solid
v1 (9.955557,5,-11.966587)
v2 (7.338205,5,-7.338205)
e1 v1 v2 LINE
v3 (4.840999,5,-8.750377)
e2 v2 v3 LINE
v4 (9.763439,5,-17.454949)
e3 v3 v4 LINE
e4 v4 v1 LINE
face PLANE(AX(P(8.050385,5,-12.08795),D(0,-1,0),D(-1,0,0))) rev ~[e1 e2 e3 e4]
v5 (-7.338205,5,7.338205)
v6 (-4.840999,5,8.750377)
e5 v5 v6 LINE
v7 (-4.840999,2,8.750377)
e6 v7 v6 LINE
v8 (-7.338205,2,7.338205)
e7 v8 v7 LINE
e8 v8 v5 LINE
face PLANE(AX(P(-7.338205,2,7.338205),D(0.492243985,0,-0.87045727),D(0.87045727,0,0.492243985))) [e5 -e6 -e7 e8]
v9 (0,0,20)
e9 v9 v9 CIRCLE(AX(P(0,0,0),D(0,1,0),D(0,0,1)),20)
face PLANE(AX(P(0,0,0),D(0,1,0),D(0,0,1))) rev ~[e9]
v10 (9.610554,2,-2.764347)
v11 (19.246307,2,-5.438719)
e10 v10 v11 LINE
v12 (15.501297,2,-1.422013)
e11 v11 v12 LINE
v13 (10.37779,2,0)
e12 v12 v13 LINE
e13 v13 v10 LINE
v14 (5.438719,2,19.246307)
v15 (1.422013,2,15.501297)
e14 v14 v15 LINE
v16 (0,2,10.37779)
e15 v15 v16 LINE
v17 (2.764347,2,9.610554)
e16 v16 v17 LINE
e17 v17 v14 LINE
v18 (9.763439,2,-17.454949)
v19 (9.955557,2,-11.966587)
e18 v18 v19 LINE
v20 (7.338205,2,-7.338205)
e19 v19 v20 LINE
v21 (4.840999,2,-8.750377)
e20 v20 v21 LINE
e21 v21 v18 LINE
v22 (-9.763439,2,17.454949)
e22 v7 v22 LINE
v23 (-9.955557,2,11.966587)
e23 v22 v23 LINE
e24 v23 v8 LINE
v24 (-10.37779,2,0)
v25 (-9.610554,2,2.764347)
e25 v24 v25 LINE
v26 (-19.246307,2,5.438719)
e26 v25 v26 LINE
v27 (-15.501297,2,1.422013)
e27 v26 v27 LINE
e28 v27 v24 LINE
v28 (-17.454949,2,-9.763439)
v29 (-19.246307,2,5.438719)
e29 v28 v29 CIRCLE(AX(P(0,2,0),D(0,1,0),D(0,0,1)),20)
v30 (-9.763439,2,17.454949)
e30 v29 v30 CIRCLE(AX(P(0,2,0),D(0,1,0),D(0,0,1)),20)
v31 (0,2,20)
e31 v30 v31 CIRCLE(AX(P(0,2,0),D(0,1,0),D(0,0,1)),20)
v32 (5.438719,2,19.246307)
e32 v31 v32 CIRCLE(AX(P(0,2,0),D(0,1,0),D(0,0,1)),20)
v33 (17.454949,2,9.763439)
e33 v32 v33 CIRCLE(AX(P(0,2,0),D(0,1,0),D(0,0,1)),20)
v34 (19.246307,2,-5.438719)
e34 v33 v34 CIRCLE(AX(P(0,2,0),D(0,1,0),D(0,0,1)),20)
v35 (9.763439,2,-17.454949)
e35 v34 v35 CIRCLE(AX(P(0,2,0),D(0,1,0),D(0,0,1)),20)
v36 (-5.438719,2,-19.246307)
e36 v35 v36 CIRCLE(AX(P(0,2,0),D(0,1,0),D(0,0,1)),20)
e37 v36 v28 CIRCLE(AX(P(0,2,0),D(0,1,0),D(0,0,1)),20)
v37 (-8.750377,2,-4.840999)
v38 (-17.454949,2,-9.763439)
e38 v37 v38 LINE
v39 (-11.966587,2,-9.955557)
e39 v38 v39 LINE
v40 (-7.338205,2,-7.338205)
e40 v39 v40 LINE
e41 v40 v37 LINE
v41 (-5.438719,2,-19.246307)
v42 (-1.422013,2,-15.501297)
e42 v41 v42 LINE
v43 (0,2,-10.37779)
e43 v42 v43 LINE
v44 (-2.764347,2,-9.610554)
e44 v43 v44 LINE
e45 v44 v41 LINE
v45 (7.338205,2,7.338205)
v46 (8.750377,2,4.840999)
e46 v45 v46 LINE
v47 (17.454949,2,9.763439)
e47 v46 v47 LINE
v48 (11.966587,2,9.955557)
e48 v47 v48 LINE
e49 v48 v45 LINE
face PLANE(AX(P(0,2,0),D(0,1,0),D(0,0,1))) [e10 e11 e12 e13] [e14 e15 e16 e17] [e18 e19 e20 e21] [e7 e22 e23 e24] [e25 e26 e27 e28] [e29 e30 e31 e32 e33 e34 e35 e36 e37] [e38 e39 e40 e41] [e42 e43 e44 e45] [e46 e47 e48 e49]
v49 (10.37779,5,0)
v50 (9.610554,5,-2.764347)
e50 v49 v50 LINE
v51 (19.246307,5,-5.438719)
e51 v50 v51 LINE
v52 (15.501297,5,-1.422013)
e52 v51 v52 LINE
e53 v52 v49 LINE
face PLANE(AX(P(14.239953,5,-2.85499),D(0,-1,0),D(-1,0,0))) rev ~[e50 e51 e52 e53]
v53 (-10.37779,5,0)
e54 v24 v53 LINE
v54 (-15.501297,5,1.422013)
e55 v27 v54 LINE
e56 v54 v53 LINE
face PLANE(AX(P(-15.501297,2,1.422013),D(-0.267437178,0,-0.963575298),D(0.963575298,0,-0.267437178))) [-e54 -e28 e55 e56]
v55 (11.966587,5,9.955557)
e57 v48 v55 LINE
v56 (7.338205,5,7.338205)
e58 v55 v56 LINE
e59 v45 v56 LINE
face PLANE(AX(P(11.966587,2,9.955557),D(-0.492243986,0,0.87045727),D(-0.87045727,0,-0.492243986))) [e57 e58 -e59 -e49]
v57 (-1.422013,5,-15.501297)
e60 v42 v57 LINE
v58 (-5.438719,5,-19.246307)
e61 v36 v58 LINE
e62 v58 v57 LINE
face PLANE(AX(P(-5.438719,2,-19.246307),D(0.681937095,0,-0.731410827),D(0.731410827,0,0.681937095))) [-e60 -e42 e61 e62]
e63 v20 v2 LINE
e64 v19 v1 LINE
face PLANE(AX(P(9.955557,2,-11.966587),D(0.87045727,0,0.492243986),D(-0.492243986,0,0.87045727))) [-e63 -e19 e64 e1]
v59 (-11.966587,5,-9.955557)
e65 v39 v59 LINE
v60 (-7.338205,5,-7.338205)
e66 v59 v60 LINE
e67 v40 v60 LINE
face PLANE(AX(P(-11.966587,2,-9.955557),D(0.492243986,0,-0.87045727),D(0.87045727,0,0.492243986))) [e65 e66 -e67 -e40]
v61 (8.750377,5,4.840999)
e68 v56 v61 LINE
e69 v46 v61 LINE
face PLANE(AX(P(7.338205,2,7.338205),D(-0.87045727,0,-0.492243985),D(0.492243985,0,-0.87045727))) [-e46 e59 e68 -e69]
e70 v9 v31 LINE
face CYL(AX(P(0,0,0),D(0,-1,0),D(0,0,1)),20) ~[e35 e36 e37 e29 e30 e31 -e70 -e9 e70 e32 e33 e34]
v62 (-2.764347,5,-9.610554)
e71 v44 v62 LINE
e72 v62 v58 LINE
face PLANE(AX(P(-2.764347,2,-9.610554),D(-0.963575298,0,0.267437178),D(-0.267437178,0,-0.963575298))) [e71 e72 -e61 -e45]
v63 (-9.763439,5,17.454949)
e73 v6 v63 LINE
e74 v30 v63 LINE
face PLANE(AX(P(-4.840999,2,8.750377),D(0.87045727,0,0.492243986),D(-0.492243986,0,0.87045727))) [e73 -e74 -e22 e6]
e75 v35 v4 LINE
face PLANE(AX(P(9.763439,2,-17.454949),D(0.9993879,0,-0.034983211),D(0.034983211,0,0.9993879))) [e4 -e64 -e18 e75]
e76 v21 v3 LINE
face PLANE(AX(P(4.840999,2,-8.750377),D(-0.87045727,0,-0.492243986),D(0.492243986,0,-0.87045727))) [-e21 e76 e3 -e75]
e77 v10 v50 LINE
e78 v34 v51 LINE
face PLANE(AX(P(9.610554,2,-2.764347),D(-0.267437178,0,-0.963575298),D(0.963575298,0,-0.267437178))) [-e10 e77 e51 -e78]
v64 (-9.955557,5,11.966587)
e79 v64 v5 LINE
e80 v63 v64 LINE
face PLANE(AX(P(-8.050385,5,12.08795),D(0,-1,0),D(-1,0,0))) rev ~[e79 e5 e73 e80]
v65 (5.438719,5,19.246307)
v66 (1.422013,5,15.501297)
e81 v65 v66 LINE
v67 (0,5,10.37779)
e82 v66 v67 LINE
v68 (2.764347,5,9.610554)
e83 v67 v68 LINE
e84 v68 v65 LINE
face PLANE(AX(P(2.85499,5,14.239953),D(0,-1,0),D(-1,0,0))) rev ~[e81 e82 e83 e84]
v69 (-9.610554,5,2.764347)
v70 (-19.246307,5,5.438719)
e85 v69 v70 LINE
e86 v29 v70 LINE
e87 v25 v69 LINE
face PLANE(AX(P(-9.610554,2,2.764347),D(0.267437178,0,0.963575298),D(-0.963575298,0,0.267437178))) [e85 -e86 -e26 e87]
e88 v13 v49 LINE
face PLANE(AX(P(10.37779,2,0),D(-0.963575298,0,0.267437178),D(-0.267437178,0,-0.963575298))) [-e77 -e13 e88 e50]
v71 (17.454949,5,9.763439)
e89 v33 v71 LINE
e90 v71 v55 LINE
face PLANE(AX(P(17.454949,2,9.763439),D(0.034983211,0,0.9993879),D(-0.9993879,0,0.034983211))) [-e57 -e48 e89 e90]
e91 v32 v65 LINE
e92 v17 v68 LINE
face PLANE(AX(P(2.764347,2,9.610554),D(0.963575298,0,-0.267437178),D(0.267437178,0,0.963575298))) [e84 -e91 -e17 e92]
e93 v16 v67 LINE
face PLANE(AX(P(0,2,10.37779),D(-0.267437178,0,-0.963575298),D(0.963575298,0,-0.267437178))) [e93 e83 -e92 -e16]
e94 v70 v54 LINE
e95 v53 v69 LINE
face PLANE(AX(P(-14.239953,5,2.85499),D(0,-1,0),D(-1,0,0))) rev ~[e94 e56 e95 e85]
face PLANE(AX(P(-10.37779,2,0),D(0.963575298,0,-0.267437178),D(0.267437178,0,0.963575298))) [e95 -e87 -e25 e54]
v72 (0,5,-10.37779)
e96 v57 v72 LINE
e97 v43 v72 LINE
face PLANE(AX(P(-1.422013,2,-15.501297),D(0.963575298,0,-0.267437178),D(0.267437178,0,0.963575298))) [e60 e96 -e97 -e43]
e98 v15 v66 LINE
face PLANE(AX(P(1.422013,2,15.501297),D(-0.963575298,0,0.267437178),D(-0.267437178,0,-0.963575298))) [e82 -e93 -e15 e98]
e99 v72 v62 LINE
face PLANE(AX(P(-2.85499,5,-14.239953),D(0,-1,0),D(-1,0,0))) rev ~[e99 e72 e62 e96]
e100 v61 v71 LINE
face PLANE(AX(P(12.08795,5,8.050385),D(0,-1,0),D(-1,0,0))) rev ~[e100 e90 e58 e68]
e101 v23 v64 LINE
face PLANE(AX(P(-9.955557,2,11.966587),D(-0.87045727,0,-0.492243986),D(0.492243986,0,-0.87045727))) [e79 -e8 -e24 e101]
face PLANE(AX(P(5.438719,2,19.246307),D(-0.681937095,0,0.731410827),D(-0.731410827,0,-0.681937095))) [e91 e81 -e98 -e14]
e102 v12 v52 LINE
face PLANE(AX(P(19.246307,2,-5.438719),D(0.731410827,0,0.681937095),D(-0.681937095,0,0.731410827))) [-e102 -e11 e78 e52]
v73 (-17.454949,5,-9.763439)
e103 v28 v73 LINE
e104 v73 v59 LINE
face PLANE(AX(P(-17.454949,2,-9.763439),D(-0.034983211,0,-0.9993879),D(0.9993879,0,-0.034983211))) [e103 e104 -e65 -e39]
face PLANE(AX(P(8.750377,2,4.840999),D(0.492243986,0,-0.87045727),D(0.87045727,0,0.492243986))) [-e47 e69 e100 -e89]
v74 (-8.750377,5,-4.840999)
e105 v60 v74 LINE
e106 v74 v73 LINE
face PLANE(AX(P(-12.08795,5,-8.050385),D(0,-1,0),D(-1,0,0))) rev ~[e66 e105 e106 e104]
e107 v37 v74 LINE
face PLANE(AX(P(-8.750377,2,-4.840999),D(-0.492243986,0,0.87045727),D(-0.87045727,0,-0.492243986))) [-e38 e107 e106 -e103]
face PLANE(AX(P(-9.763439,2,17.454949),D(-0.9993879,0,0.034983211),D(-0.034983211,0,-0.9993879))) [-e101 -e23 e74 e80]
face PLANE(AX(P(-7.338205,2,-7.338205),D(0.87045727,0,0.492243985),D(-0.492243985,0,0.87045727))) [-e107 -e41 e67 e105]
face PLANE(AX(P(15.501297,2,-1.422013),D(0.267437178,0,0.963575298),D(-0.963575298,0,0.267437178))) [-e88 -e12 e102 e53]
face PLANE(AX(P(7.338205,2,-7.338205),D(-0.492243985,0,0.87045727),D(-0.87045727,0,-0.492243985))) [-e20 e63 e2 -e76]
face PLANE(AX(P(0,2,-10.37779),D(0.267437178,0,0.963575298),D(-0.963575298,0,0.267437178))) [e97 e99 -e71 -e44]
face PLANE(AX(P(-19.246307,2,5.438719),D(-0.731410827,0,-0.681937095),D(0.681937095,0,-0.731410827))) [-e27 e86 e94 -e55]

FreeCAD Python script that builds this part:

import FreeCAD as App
import Part
import Sketcher

V = App.Vector

doc = App.newDocument("Part")
params = doc.addObject("Spreadsheet::Sheet", "Params")
for row, (alias, value) in enumerate([
    ("sketch1_diameter", "40 mm"),
    ("pad1_length", "2 mm"),
    ("sketch2_length", "10 mm"),
    ("pad2_length", "3 mm"),
], start=1):
    params.set(f"A{row}", alias)
    params.set(f"B{row}", "=" + value)
    params.setAlias(f"B{row}", alias)

body = doc.addObject("PartDesign::Body", "Body")

# Sketch on XZ plane
sketch1 = doc.addObject("Sketcher::SketchObject", "Sketch")
body.addObject(sketch1)
sketch1.AttachmentSupport = (doc.XZ_Plane, [""])
sketch1.MapMode = "FlatFace"
sketch1.addGeometry(Part.Circle(V(0, 0, 0), V(0, 0, 1), 20), False)
sketch1.addConstraint([
    Sketcher.Constraint("Coincident", 0, 3, -1, 1),
    Sketcher.Constraint("Diameter", 0, 40.0),
])
sketch1.setExpression("Constraints[1]", "Params.sketch1_diameter")
pad1 = doc.addObject("PartDesign::Pad", "Pad")
body.addObject(pad1)
pad1.Profile = sketch1
pad1.setExpression("Length", "Params.pad1_length")
pad1.Reversed = True

# Sketch on XZ plane
sketch2 = doc.addObject("Sketcher::SketchObject", "Sketch001")
body.addObject(sketch2)
sketch2.AttachmentSupport = (doc.XZ_Plane, [""])
sketch2.MapMode = "FlatFace"
sketch2.AttachmentOffset = App.Placement(V(0, 0, -2), App.Rotation())
sketch2.addGeometry([
    Part.LineSegment(V(0, 10.37779, 0), V(1.422013, 15.501297, 0)),  # 0
    Part.LineSegment(V(1.422013, 15.501297, 0), V(5.438719, 19.246307, 0)),  # 1
    Part.LineSegment(V(5.438719, 19.246307, 0), V(2.764347, 9.610554, 0)),  # 2
    Part.LineSegment(V(2.764347, 9.610554, 0), V(0, 10.37779, 0)),  # 3
    Part.LineSegment(V(-7.338205, 7.338205, 0), V(-9.955557, 11.966587, 0)),  # 4
    Part.LineSegment(V(-9.955557, 11.966587, 0), V(-9.763439, 17.454949, 0)),  # 5
    Part.LineSegment(V(-9.763439, 17.454949, 0), V(-4.840999, 8.750377, 0)),  # 6
    Part.LineSegment(V(-4.840999, 8.750377, 0), V(-7.338205, 7.338205, 0)),  # 7
    Part.LineSegment(V(-10.37779, 0, 0), V(-15.501297, 1.422013, 0)),  # 8
    Part.LineSegment(V(-15.501297, 1.422013, 0), V(-19.246307, 5.438719, 0)),  # 9
    Part.LineSegment(V(-19.246307, 5.438719, 0), V(-9.610554, 2.764347, 0)),  # 10
    Part.LineSegment(V(-9.610554, 2.764347, 0), V(-10.37779, 0, 0)),  # 11
    Part.LineSegment(V(-7.338205, -7.338205, 0), V(-11.966587, -9.955557, 0)),  # 12
    Part.LineSegment(V(-11.966587, -9.955557, 0), V(-17.454949, -9.763439, 0)),  # 13
    Part.LineSegment(V(-17.454949, -9.763439, 0), V(-8.750377, -4.840999, 0)),  # 14
    Part.LineSegment(V(-8.750377, -4.840999, 0), V(-7.338205, -7.338205, 0)),  # 15
    Part.LineSegment(V(0, -10.37779, 0), V(-1.422013, -15.501297, 0)),  # 16
    Part.LineSegment(V(-1.422013, -15.501297, 0), V(-5.438719, -19.246307, 0)),  # 17
    Part.LineSegment(V(-5.438719, -19.246307, 0), V(-2.764347, -9.610554, 0)),  # 18
    Part.LineSegment(V(-2.764347, -9.610554, 0), V(0, -10.37779, 0)),  # 19
    Part.LineSegment(V(7.338205, -7.338205, 0), V(9.955557, -11.966587, 0)),  # 20
    Part.LineSegment(V(9.955557, -11.966587, 0), V(9.763439, -17.454949, 0)),  # 21
    Part.LineSegment(V(9.763439, -17.454949, 0), V(4.840999, -8.750377, 0)),  # 22
    Part.LineSegment(V(4.840999, -8.750377, 0), V(7.338205, -7.338205, 0)),  # 23
    Part.LineSegment(V(10.37779, 0, 0), V(15.501297, -1.422013, 0)),  # 24
    Part.LineSegment(V(15.501297, -1.422013, 0), V(19.246307, -5.438719, 0)),  # 25
    Part.LineSegment(V(19.246307, -5.438719, 0), V(9.610554, -2.764347, 0)),  # 26
    Part.LineSegment(V(9.610554, -2.764347, 0), V(10.37779, 0, 0)),  # 27
    Part.LineSegment(V(7.338205, 7.338205, 0), V(11.966587, 9.955557, 0)),  # 28
    Part.LineSegment(V(11.966587, 9.955557, 0), V(17.454949, 9.763439, 0)),  # 29
    Part.LineSegment(V(17.454949, 9.763439, 0), V(8.750377, 4.840999, 0)),  # 30
    Part.LineSegment(V(8.750377, 4.840999, 0), V(7.338205, 7.338205, 0)),  # 31
], False)
sketch2.addConstraint([
    Sketcher.Constraint("Coincident", 0, 2, 1, 1),
    Sketcher.Constraint("Coincident", 1, 2, 2, 1),
    Sketcher.Constraint("Coincident", 2, 2, 3, 1),
    Sketcher.Constraint("Coincident", 3, 2, 0, 1),
    Sketcher.Constraint("Coincident", 4, 2, 5, 1),
    Sketcher.Constraint("Coincident", 5, 2, 6, 1),
    Sketcher.Constraint("Coincident", 6, 2, 7, 1),
    Sketcher.Constraint("Coincident", 7, 2, 4, 1),
    Sketcher.Constraint("Coincident", 8, 2, 9, 1),
    Sketcher.Constraint("Coincident", 9, 2, 10, 1),
    Sketcher.Constraint("Coincident", 10, 2, 11, 1),
    Sketcher.Constraint("Coincident", 11, 2, 8, 1),
    Sketcher.Constraint("Coincident", 12, 2, 13, 1),
    Sketcher.Constraint("Coincident", 13, 2, 14, 1),
    Sketcher.Constraint("Coincident", 14, 2, 15, 1),
    Sketcher.Constraint("Coincident", 15, 2, 12, 1),
    Sketcher.Constraint("Coincident", 16, 2, 17, 1),
    Sketcher.Constraint("Coincident", 17, 2, 18, 1),
    Sketcher.Constraint("Coincident", 18, 2, 19, 1),
    Sketcher.Constraint("Coincident", 19, 2, 16, 1),
    Sketcher.Constraint("Coincident", 20, 2, 21, 1),
    Sketcher.Constraint("Coincident", 21, 2, 22, 1),
    Sketcher.Constraint("Coincident", 22, 2, 23, 1),
    Sketcher.Constraint("Coincident", 23, 2, 20, 1),
    Sketcher.Constraint("Coincident", 24, 2, 25, 1),
    Sketcher.Constraint("Coincident", 25, 2, 26, 1),
    Sketcher.Constraint("Coincident", 26, 2, 27, 1),
    Sketcher.Constraint("Coincident", 27, 2, 24, 1),
    Sketcher.Constraint("Coincident", 28, 2, 29, 1),
    Sketcher.Constraint("Coincident", 29, 2, 30, 1),
    Sketcher.Constraint("Coincident", 30, 2, 31, 1),
    Sketcher.Constraint("Coincident", 31, 2, 28, 1),
    Sketcher.Constraint("Symmetric", 0, 2, 16, 2, -1, 1),
    Sketcher.Constraint("Symmetric", 1, 2, 17, 2, -1, 1),
    Sketcher.Constraint("Symmetric", 2, 2, 18, 2, -1, 1),
    Sketcher.Constraint("Symmetric", 3, 2, 19, 2, -1, 1),
    Sketcher.Constraint("Symmetric", 4, 2, 20, 2, -1, 1),
    Sketcher.Constraint("Symmetric", 5, 2, 21, 2, -1, 1),
    Sketcher.Constraint("Symmetric", 6, 2, 22, 2, -1, 1),
    Sketcher.Constraint("Symmetric", 7, 2, 23, 2, -1, 1),
    Sketcher.Constraint("Symmetric", 8, 2, 24, 2, -1, 1),
    Sketcher.Constraint("Symmetric", 9, 2, 25, 2, -1, 1),
    Sketcher.Constraint("Symmetric", 10, 2, 26, 2, -1, 1),
    Sketcher.Constraint("Symmetric", 11, 2, 27, 2, -1, 1),
    Sketcher.Constraint("Symmetric", 12, 2, 28, 2, -1, 1),
    Sketcher.Constraint("Symmetric", 13, 2, 29, 2, -1, 1),
    Sketcher.Constraint("Symmetric", 14, 2, 30, 2, -1, 1),
    Sketcher.Constraint("Symmetric", 15, 2, 31, 2, -1, 1),
    Sketcher.Constraint("Symmetric", 15, 2, 23, 2, -2),
    Sketcher.Constraint("PointOnObject", 3, 2, -2),
    Sketcher.Constraint("PointOnObject", 11, 2, -1),
    Sketcher.Constraint("Parallel", 0, 2),
    Sketcher.Constraint("Perpendicular", 2, 3),
    Sketcher.Constraint("Parallel", 4, 6),
    Sketcher.Constraint("Perpendicular", 6, 7),
    Sketcher.Constraint("Parallel", 3, 8),
    Sketcher.Constraint("Perpendicular", 1, 9),
    Sketcher.Constraint("Parallel", 8, 10),
    Sketcher.Constraint("Perpendicular", 10, 11),
    Sketcher.Constraint("Parallel", 7, 12),
    Sketcher.Constraint("Perpendicular", 5, 13),
    Sketcher.Constraint("Parallel", 12, 14),
    Sketcher.Constraint("Perpendicular", 14, 15),
    Sketcher.Constraint("Equal", 0, 4),
    Sketcher.Constraint("Equal", 1, 5),
    Sketcher.Constraint("Equal", 2, 6),
    Sketcher.Constraint("Equal", 4, 8),
    Sketcher.Constraint("Equal", 5, 9),
    Sketcher.Constraint("Equal", 8, 12),
    Sketcher.Constraint("Equal", 9, 13),
    Sketcher.Constraint("Distance", 2, 10.0),
    Sketcher.Constraint("DistanceX", 6, 2, -1, 1, 4.840999),
    Sketcher.Constraint("DistanceY", 14, 2, -1, 1, 4.840999),
    Sketcher.Constraint("DistanceX", 9, 2, 7, 2, 11.908102),
    Sketcher.Constraint("DistanceY", 17, 2, 15, 2, 11.908102),
    Sketcher.Constraint("DistanceX", -1, 1, 1, 2, 5.438719),
    Sketcher.Constraint("DistanceY", -1, 1, 3, 2, 10.37779),
    Sketcher.Constraint("DistanceX", 5, 2, -1, 1, 9.763439),
    Sketcher.Constraint("DistanceY", 0, 2, 1, 2, 3.74501),
])
sketch2.setExpression("Constraints[70]", "Params.sketch2_length")
pad2 = doc.addObject("PartDesign::Pad", "Pad001")
body.addObject(pad2)
pad2.Profile = sketch2
pad2.setExpression("Length", "Params.pad2_length")
pad2.Reversed = True

doc.recompute()
